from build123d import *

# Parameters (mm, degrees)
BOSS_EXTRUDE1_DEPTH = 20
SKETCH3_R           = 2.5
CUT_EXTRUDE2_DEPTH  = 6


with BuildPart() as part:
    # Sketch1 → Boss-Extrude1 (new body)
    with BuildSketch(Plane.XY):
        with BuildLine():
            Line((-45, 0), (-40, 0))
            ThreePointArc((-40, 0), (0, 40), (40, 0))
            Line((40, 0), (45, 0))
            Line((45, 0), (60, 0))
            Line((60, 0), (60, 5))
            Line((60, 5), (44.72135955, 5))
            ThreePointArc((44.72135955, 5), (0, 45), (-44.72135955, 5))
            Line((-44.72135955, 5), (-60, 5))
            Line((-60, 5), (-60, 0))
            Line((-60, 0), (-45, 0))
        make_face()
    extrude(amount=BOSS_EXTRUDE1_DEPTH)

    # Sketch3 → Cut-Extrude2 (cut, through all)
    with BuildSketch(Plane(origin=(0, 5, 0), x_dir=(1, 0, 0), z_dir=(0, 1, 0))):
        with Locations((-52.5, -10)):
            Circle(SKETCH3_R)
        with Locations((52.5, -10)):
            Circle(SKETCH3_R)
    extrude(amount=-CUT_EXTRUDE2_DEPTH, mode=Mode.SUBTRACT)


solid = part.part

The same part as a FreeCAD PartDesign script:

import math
import FreeCAD as App
import Part
import Sketcher

doc = App.newDocument("Part")
body = doc.addObject("PartDesign::Body", "Body")

# Sketch on XY plane
sketch1 = body.newObject("Sketcher::SketchObject", "Sketch")
sketch1.AttachmentSupport = (doc.getObject("XY_Plane"), [""])
sketch1.MapMode = "FlatFace"
sketch1.addGeometry([
    Part.ArcOfCircle(Part.Circle(App.Vector(0, 0, 0), App.Vector(0, 0, 1), 40), math.radians(0), math.radians(180)),  # 0
    Part.LineSegment(App.Vector(40, 0, 0), App.Vector(60, 0, 0)),  # 1
    Part.LineSegment(App.Vector(60, 0, 0), App.Vector(60, 5, 0)),  # 2
    Part.LineSegment(App.Vector(60, 5, 0), App.Vector(44.72136, 5, 0)),  # 3
    Part.ArcOfCircle(Part.Circle(App.Vector(0, 0, 0), App.Vector(0, 0, 1), 45), math.radians(6.37937), math.radians(173.62063)),  # 4
    Part.LineSegment(App.Vector(-44.72136, 5, 0), App.Vector(-60, 5, 0)),  # 5
    Part.LineSegment(App.Vector(-60, 5, 0), App.Vector(-60, 0, 0)),  # 6
    Part.LineSegment(App.Vector(-60, 0, 0), App.Vector(-40, 0, 0)),  # 7
], False)
sketch1.addConstraint([
    Sketcher.Constraint("Coincident", 0, 1, 1, 1),
    Sketcher.Constraint("Coincident", 1, 2, 2, 1),
    Sketcher.Constraint("Coincident", 2, 2, 3, 1),
    Sketcher.Constraint("Coincident", 3, 2, 4, 1),
    Sketcher.Constraint("Coincident", 4, 2, 5, 1),
    Sketcher.Constraint("Coincident", 5, 2, 6, 1),
    Sketcher.Constraint("Coincident", 6, 2, 7, 1),
    Sketcher.Constraint("Coincident", 7, 2, 0, 2),
    Sketcher.Constraint("Horizontal", 1),
    Sketcher.Constraint("Vertical", 2),
    Sketcher.Constraint("Horizontal", 3),
    Sketcher.Constraint("Horizontal", 5),
    Sketcher.Constraint("Vertical", 6),
    Sketcher.Constraint("Horizontal", 7),
    Sketcher.Constraint("Coincident", 0, 3, -1, 1),
    Sketcher.Constraint("Coincident", 4, 3, -1, 1),
    Sketcher.Constraint("Symmetric", 1, 2, 6, 2, -1, 1),
    Sketcher.Constraint("PointOnObject", 0, 1, -1),
    Sketcher.Constraint("Horizontal", 3, 2, 4, 2),
    Sketcher.Constraint("Radius", 0, 40.0),
    Sketcher.Constraint("Radius", 4, 45.0),
    Sketcher.Constraint("DistanceX", 1, 1, 1, 2, 20.0),
    Sketcher.Constraint("DistanceY", 2, 1, 2, 2, 5.0),
])
pad1 = body.newObject("PartDesign::Pad", "Pad")
pad1.Profile = sketch1
pad1.Length = 20

# Sketch on XZ plane
sketch2 = body.newObject("Sketcher::SketchObject", "Sketch001")
sketch2.AttachmentSupport = (doc.getObject("XZ_Plane"), [""])
sketch2.MapMode = "FlatFace"
sketch2.AttachmentOffset = App.Placement(App.Vector(0, 0, -5), App.Rotation())
sketch2.addGeometry([
    Part.Circle(App.Vector(-52.5, 10, 0), App.Vector(0, 0, 1), 2.5),
    Part.Circle(App.Vector(52.5, 10, 0), App.Vector(0, 0, 1), 2.5),
], False)
sketch2.addConstraint([
    Sketcher.Constraint("Equal", 0, 1),
    Sketcher.Constraint("Symmetric", 0, 3, 1, 3, -2),
    Sketcher.Constraint("Diameter", 0, 5.0),
    Sketcher.Constraint("DistanceY", -1, 1, 0, 3, 10.0),
    Sketcher.Constraint("DistanceX", 0, 3, 1, 3, 105.0),
])
pocket1 = body.newObject("PartDesign::Pocket", "Pocket")
pocket1.Profile = sketch2
pocket1.Type = "ThroughAll"
pocket1.Reversed = True

doc.recompute()
